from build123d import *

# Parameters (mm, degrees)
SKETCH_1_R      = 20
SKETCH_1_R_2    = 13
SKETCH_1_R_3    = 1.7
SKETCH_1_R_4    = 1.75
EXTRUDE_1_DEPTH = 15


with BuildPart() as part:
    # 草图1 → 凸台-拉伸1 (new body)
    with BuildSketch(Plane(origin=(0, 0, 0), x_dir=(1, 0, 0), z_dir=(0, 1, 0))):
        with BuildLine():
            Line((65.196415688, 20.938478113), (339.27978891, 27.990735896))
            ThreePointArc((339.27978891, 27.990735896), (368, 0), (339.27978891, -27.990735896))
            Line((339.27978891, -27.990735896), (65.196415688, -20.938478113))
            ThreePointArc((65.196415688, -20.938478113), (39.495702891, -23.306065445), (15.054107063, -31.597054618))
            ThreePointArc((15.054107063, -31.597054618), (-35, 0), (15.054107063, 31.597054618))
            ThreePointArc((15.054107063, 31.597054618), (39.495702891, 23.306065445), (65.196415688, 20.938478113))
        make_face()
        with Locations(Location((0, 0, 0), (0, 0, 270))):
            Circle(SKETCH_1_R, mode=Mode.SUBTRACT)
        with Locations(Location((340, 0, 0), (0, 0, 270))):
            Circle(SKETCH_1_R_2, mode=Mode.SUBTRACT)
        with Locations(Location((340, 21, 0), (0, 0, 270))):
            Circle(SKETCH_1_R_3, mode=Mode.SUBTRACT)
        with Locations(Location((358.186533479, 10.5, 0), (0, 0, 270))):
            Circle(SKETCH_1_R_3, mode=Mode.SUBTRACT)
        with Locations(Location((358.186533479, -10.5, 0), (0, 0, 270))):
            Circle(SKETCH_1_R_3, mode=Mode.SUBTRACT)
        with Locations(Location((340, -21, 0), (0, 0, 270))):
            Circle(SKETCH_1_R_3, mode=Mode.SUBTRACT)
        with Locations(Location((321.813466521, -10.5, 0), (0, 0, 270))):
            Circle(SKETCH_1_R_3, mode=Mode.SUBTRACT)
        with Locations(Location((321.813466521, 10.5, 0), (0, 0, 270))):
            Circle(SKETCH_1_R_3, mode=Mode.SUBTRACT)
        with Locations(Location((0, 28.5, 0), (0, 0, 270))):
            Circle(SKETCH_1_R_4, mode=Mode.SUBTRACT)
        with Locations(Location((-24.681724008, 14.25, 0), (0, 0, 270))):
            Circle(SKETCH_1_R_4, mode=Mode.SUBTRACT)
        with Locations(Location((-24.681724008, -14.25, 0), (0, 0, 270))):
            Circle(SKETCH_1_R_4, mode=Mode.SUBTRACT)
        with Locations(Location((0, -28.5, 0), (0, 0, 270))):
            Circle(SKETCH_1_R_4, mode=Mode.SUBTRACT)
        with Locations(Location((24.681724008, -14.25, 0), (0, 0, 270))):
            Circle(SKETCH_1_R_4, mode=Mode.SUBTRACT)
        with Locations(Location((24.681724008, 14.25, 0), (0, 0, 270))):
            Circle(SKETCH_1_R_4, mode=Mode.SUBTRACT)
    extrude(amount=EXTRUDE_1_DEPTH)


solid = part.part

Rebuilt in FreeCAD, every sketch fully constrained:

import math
import FreeCAD as App
import Part
import Sketcher
from FreeCAD import Vector
Q = App.Units.Quantity

doc = App.newDocument("Part")
params = doc.addObject("Spreadsheet::Sheet", "Params")
for row, (alias, value) in enumerate([
    ("sketch1_diameter", "26 mm"),
    ("sketch1_diameter2", "40 mm"),
    ("sketch1_radius", "110 mm"),
    ("sketch1_radius2", "35 mm"),
    ("sketch1_radius3", "28 mm"),
    ("pad1_length", "15 mm"),
], start=1):
    params.set(f"A{row}", alias)
    params.set(f"B{row}", "=" + value)
    params.setAlias(f"B{row}", alias)

body = doc.addObject("PartDesign::Body", "Body")

sketch1 = body.newObject("Sketcher::SketchObject", "Sketch")
sketch1.AttachmentSupport = (doc.getObject("XZ_Plane"), [""])
sketch1.MapMode = "FlatFace"
sketch1.addGeometry(Part.LineSegment(Vector(339.3, -28, 0), Vector(65.2, -20.9, 0)), False)
sketch1.addGeometry(Part.ArcOfCircle(Part.Circle(Vector(62.4, -130.9, 0), Vector(0, 0, 1), 110), math.radians(89), math.radians(115)), False)
sketch1.addGeometry(Part.ArcOfCircle(Part.Circle(Vector(0, 0, 0), Vector(0, 0, 1), 35), math.radians(65), math.radians(295)), False)
sketch1.addGeometry(Part.ArcOfCircle(Part.Circle(Vector(62.4, 130.9, 0), Vector(0, 0, 1), 110), math.radians(-115), math.radians(-89)), False)
sketch1.addGeometry(Part.LineSegment(Vector(65.2, 20.9, 0), Vector(339.3, 28, 0)), False)
sketch1.addGeometry(Part.ArcOfCircle(Part.Circle(Vector(340, 0, 0), Vector(0, 0, 1), 28), math.radians(-91), math.radians(91)), False)
sketch1.addGeometry(Part.Circle(Vector(340, 21, 0), Vector(0, 0, 1), 1.7), False)
sketch1.addGeometry(Part.Circle(Vector(358.2, 10.5, 0), Vector(0, 0, 1), 1.7), False)
sketch1.addGeometry(Part.Circle(Vector(321.8, 10.5, 0), Vector(0, 0, 1), 1.7), False)
sketch1.addGeometry(Part.Circle(Vector(0, 28.5, 0), Vector(0, 0, 1), 1.8), False)
sketch1.addGeometry(Part.Circle(Vector(24.7, 14.2, 0), Vector(0, 0, 1), 1.8), False)
sketch1.addGeometry(Part.Circle(Vector(-24.7, 14.2, 0), Vector(0, 0, 1), 1.8), False)
sketch1.addGeometry(Part.Circle(Vector(340, 0, 0), Vector(0, 0, 1), 13), False)
sketch1.addGeometry(Part.Circle(Vector(358.2, -10.5, 0), Vector(0, 0, 1), 1.7), False)
sketch1.addGeometry(Part.Circle(Vector(321.8, -10.5, 0), Vector(0, 0, 1), 1.7), False)
sketch1.addGeometry(Part.Circle(Vector(340, -21, 0), Vector(0, 0, 1), 1.7), False)
sketch1.addGeometry(Part.Circle(Vector(0, 0, 0), Vector(0, 0, 1), 20), False)
sketch1.addGeometry(Part.Circle(Vector(24.7, -14.2, 0), Vector(0, 0, 1), 1.8), False)
sketch1.addGeometry(Part.Circle(Vector(-24.7, -14.2, 0), Vector(0, 0, 1), 1.8), False)
sketch1.addGeometry(Part.Circle(Vector(0, -28.5, 0), Vector(0, 0, 1), 1.8), False)
sketch1.addConstraint(Sketcher.Constraint("Tangent", 0, 2, 1, 1))
sketch1.addConstraint(Sketcher.Constraint("Tangent", 1, 2, 2, 2))
sketch1.addConstraint(Sketcher.Constraint("Tangent", 2, 1, 3, 1))
sketch1.addConstraint(Sketcher.Constraint("Tangent", 3, 2, 4, 1))
sketch1.addConstraint(Sketcher.Constraint("Tangent", 4, 2, 5, 2))
sketch1.addConstraint(Sketcher.Constraint("Tangent", 5, 1, 0, 1))
sketch1.addConstraint(Sketcher.Constraint("Coincident", 2, 3, -1, 1))
sketch1.addConstraint(Sketcher.Constraint("Coincident", 16, 3, -1, 1))
sketch1.addConstraint(Sketcher.Constraint("Coincident", 12, 3, 5, 3))
sketch1.addConstraint(Sketcher.Constraint("Equal", 1, 3))
sketch1.addConstraint(Sketcher.Constraint("Equal", 6, 7))
sketch1.addConstraint(Sketcher.Constraint("Equal", 7, 8))
sketch1.addConstraint(Sketcher.Constraint("Equal", 9, 10))
sketch1.addConstraint(Sketcher.Constraint("Equal", 10, 11))
sketch1.addConstraint(Sketcher.Constraint("Equal", 8, 13))
sketch1.addConstraint(Sketcher.Constraint("Equal", 13, 14))
sketch1.addConstraint(Sketcher.Constraint("Equal", 14, 15))
sketch1.addConstraint(Sketcher.Constraint("Equal", 11, 17))
sketch1.addConstraint(Sketcher.Constraint("Equal", 17, 18))
sketch1.addConstraint(Sketcher.Constraint("Equal", 18, 19))
sketch1.addConstraint(Sketcher.Constraint("Symmetric", 11, 3, 17, 3, -1, 1))
sketch1.addConstraint(Sketcher.Constraint("Symmetric", 10, 3, 18, 3, -1, 1))
sketch1.addConstraint(Sketcher.Constraint("Symmetric", 9, 3, 19, 3, -1, 1))
sketch1.addConstraint(Sketcher.Constraint("Symmetric", 10, 3, 11, 3, -2))
sketch1.addConstraint(Sketcher.Constraint("Symmetric", 7, 3, 13, 3, -1))
sketch1.addConstraint(Sketcher.Constraint("Symmetric", 8, 3, 14, 3, -1))
sketch1.addConstraint(Sketcher.Constraint("Symmetric", 6, 3, 15, 3, -1))
sketch1.addConstraint(Sketcher.Constraint("Symmetric", 0, 2, 3, 2, -1))
sketch1.addConstraint(Sketcher.Constraint("PointOnObject", 9, 3, -2))
sketch1.addConstraint(Sketcher.Constraint("Horizontal", 7, 3, 8, 3))
sketch1.addConstraint(Sketcher.Constraint("Vertical", 5, 3, 6, 3))
sketch1.addConstraint(Sketcher.Constraint("Diameter", 12, Q("26 mm")))
sketch1.addConstraint(Sketcher.Constraint("Diameter", 16, Q("40 mm")))
sketch1.addConstraint(Sketcher.Constraint("Radius", 1, Q("110 mm")))
sketch1.addConstraint(Sketcher.Constraint("Radius", 2, Q("35 mm")))
sketch1.addConstraint(Sketcher.Constraint("Radius", 5, Q("28 mm")))
sketch1.addConstraint(Sketcher.Constraint("Diameter", 6, Q("3.4 mm")))
sketch1.addConstraint(Sketcher.Constraint("Diameter", 9, Q("3.5 mm")))
sketch1.addConstraint(Sketcher.Constraint("DistanceX", -1, 1, 5, 3, Q("340 mm")))
sketch1.addConstraint(Sketcher.Constraint("DistanceY", -1, 1, 6, 3, Q("21 mm")))
sketch1.addConstraint(Sketcher.Constraint("DistanceY", 8, 3, 9, 3, Q("18 mm")))
sketch1.addConstraint(Sketcher.Constraint("DistanceY", 13, 3, 7, 3, Q("21 mm")))
sketch1.addConstraint(Sketcher.Constraint("DistanceY", 17, 3, 10, 3, Q("28.5 mm")))
sketch1.addConstraint(Sketcher.Constraint("DistanceY", 0, 2, -1, 1, Q("20.938478 mm")))
sketch1.addConstraint(Sketcher.Constraint("DistanceX", 3, 3, 7, 3, Q("295.819519 mm")))
sketch1.addConstraint(Sketcher.Constraint("DistanceX", 3, 3, 8, 3, Q("259.446452 mm")))
sketch1.addConstraint(Sketcher.Constraint("DistanceX", 10, 3, 3, 3, Q("37.685291 mm")))
sketch1.setExpression("Constraints[31]", "Params.sketch1_diameter")
sketch1.setExpression("Constraints[32]", "Params.sketch1_diameter2")
sketch1.setExpression("Constraints[33]", "Params.sketch1_radius")
sketch1.setExpression("Constraints[34]", "Params.sketch1_radius2")
sketch1.setExpression("Constraints[35]", "Params.sketch1_radius3")
pad1 = body.newObject("PartDesign::Pad", "Pad")
pad1.Profile = sketch1
pad1.setExpression("Length", "Params.pad1_length")
pad1.Reversed = True

doc.recompute()
